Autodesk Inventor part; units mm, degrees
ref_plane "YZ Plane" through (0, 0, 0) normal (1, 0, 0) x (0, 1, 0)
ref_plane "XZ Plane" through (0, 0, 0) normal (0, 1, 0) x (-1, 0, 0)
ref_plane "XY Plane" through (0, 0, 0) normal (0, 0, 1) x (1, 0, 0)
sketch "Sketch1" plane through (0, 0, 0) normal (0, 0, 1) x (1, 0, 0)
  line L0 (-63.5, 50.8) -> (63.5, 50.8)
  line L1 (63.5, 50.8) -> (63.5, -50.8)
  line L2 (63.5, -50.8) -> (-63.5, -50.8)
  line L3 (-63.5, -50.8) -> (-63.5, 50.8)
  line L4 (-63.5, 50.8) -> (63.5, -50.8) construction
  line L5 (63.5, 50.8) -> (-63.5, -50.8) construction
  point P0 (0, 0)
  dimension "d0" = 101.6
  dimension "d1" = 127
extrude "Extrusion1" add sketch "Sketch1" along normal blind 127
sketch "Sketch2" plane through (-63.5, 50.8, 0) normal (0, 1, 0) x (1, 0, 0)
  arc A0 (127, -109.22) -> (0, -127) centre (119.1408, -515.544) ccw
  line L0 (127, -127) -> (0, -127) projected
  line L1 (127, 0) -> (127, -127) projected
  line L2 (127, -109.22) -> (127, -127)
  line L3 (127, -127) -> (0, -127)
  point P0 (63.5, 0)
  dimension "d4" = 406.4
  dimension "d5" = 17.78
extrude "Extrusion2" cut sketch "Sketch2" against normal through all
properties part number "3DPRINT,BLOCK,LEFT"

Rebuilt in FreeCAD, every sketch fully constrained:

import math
import FreeCAD as App
import Part
import Sketcher
from FreeCAD import Vector
Q = App.Units.Quantity


def add_polygon(sketch, points):
    """Adds a closed chain of lines whose ends are joined by coincident constraints."""
    first, n = sketch.GeometryCount, len(points)
    for a, b in zip(points, points[1:] + points[:1]):
        sketch.addGeometry(Part.LineSegment(App.Vector(*a, 0), App.Vector(*b, 0)), False)
    for i in range(n):
        sketch.addConstraint(Sketcher.Constraint("Coincident", first + i, 2, first + (i + 1) % n, 1))

doc = App.newDocument("Part")
body = doc.addObject("PartDesign::Body", "Body")

# Sketch on XY plane
sketch1 = body.newObject("Sketcher::SketchObject", "Sketch")
sketch1.AttachmentSupport = (doc.getObject("XY_Plane"), [""])
sketch1.MapMode = "FlatFace"
add_polygon(sketch1, [(63.5, 50.8), (-63.5, 50.8), (-63.5, -50.8), (63.5, -50.8)])  # lines 0-3
sketch1.addConstraint(Sketcher.Constraint("Horizontal", 0))
sketch1.addConstraint(Sketcher.Constraint("Vertical", 1))
sketch1.addConstraint(Sketcher.Constraint("Horizontal", 2))
sketch1.addConstraint(Sketcher.Constraint("Vertical", 3))
sketch1.addConstraint(Sketcher.Constraint("Symmetric", 0, 2, 2, 2, -1, 1))
sketch1.addConstraint(Sketcher.Constraint("DistanceX", 0, 2, 0, 1, Q("5 in")))
sketch1.addConstraint(Sketcher.Constraint("DistanceY", 1, 2, 1, 1, Q("4 in")))
pad1 = body.newObject("PartDesign::Pad", "Pad")
pad1.Profile = sketch1
pad1.Length = Q("5 in")

# Sketch on XZ plane
sketch2 = body.newObject("Sketcher::SketchObject", "Sketch001")
sketch2.AttachmentSupport = (doc.getObject("XZ_Plane"), [""])
sketch2.MapMode = "FlatFace"
sketch2.AttachmentOffset = App.Placement(Vector(0, 0, -2 * 25.4), App.Rotation())
sketch2.addGeometry(Part.LineSegment(Vector(63.5, 127, 0), Vector(63.5, 109.22, 0)), False)
sketch2.addGeometry(Part.ArcOfCircle(Part.Circle(Vector(55.6408, 515.544, 0), Vector(0, 0, 1), 406.4), math.radians(-107.04732), math.radians(-88.891912)), False)
sketch2.addGeometry(Part.LineSegment(Vector(-63.5, 127, 0), Vector(63.5, 127, 0)), False)
sketch2.addConstraint(Sketcher.Constraint("Coincident", 0, 2, 1, 2))
sketch2.addConstraint(Sketcher.Constraint("Coincident", 1, 1, 2, 1))
sketch2.addConstraint(Sketcher.Constraint("Coincident", 2, 2, 0, 1))
sketch2.addConstraint(Sketcher.Constraint("Vertical", 0))
sketch2.addConstraint(Sketcher.Constraint("Horizontal", 2))
sketch2.addConstraint(Sketcher.Constraint("Radius", 1, Q("16 in")))
sketch2.addConstraint(Sketcher.Constraint("DistanceY", 0, 2, 0, 1, Q("0.7 in")))
sketch2.addConstraint(Sketcher.Constraint("DistanceX", 2, 1, 2, 2, Q("5 in")))
sketch2.addConstraint(Sketcher.Constraint("DistanceY", -1, 1, 1, 1, Q("5 in")))
sketch2.addConstraint(Sketcher.Constraint("DistanceX", -1, 1, 0, 2, Q("2.5 in")))
pocket1 = body.newObject("PartDesign::Pocket", "Pocket")
pocket1.Profile = sketch2
pocket1.Type = "ThroughAll"
pocket1.Reversed = True

doc.recompute()
